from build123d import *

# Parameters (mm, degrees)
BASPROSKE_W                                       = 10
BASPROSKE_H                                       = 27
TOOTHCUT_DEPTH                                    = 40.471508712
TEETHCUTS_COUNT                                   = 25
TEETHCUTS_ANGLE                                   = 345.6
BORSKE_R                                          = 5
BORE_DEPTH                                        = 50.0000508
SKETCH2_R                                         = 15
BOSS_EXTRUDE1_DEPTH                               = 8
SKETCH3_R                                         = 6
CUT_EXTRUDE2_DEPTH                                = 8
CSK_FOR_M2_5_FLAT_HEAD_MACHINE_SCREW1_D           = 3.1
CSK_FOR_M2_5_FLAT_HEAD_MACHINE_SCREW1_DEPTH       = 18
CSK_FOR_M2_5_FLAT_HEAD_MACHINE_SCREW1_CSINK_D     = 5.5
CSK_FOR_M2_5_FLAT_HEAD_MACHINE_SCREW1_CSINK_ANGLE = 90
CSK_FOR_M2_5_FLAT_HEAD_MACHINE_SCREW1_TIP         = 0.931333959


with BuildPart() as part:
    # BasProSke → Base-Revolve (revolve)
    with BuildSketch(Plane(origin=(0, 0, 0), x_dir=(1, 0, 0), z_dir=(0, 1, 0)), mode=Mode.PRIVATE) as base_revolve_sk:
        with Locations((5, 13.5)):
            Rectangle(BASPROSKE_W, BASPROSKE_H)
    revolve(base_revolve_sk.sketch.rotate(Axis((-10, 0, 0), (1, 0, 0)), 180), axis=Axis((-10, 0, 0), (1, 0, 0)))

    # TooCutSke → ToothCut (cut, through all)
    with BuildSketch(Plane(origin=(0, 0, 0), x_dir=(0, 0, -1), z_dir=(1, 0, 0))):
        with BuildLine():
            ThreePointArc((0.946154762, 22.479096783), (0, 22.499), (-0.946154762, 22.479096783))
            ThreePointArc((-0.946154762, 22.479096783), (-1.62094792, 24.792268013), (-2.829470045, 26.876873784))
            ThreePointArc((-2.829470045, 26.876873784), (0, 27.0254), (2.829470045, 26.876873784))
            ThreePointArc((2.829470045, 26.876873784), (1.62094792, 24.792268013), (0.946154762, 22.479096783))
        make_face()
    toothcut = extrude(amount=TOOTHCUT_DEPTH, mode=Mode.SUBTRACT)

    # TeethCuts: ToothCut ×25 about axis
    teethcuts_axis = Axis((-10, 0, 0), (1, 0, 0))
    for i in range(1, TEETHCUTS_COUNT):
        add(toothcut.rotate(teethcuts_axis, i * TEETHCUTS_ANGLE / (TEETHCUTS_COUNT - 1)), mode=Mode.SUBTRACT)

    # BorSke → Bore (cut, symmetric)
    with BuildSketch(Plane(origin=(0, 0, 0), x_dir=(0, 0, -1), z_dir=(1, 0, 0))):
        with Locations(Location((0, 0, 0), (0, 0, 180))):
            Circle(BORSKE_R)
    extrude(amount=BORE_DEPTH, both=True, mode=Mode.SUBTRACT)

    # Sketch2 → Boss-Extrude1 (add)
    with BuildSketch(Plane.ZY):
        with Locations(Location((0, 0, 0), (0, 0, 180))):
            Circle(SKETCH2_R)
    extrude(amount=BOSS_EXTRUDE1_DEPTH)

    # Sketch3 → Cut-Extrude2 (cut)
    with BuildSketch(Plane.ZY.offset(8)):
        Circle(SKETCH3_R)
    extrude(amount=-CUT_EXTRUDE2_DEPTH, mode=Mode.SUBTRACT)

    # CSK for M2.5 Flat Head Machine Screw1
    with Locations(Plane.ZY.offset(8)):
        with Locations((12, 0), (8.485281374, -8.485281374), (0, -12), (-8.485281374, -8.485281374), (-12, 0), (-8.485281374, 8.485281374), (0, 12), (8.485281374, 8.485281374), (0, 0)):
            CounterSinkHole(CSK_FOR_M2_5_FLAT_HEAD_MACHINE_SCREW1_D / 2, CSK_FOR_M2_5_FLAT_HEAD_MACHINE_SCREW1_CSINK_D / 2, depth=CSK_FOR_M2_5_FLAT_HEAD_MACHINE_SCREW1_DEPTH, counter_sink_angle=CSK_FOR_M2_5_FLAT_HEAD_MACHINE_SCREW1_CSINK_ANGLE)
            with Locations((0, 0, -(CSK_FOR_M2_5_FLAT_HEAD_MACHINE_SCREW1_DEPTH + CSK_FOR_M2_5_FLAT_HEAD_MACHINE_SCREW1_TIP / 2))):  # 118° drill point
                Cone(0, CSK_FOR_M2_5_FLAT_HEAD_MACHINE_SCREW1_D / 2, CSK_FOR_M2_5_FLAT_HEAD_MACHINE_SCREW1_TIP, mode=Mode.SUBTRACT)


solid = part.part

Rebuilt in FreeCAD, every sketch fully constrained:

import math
import FreeCAD as App
import Part
import Sketcher
from FreeCAD import Vector
Q = App.Units.Quantity


def add_polygon(sketch, points):
    """Adds a closed chain of lines whose ends are joined by coincident constraints."""
    first, n = sketch.GeometryCount, len(points)
    for a, b in zip(points, points[1:] + points[:1]):
        sketch.addGeometry(Part.LineSegment(App.Vector(*a, 0), App.Vector(*b, 0)), False)
    for i in range(n):
        sketch.addConstraint(Sketcher.Constraint("Coincident", first + i, 2, first + (i + 1) % n, 1))

doc = App.newDocument("Part")
params = doc.addObject("Spreadsheet::Sheet", "Params")
for row, (alias, value) in enumerate([
    ("sketch1_width", "10 mm"),
    ("sketch1_height", "27 mm"),
    ("revolution_angle", "360 deg"),
    ("sketch2_radius", "10 mm"),
    ("sketch3_diameter", "10 mm"),
    ("pocket2_length", "100.000102 mm"),
    ("sketch4_diameter", "30 mm"),
    ("pad1_length", "8 mm"),
    ("sketch5_diameter", "12 mm"),
    ("pocket3_length", "8 mm"),
    ("sketch6_diameter", "3.1 mm"),
    ("hole_diameter", "3.1 mm"),
    ("hole_depth", "18 mm"),
    ("hole_csink_diameter", "5.5 mm"),
], start=1):
    params.set(f"A{row}", alias)
    params.set(f"B{row}", "=" + value)
    params.setAlias(f"B{row}", alias)

body = doc.addObject("PartDesign::Body", "Body")

# Sketch on XZ plane
sketch1 = doc.addObject("Sketcher::SketchObject", "Sketch")
body.addObject(sketch1)
sketch1.AttachmentSupport = (doc.XZ_Plane, [""])
sketch1.MapMode = "FlatFace"
add_polygon(sketch1, [(0, -27), (0, 0), (10, 0), (10, -27)])  # lines 0-3
sketch1.addConstraint(Sketcher.Constraint("Vertical", 0))
sketch1.addConstraint(Sketcher.Constraint("Horizontal", 1))
sketch1.addConstraint(Sketcher.Constraint("Vertical", 2))
sketch1.addConstraint(Sketcher.Constraint("Horizontal", 3))
sketch1.addConstraint(Sketcher.Constraint("Coincident", 0, 2, -1, 1))
sketch1.addConstraint(Sketcher.Constraint("DistanceX", 1, 1, 1, 2, Q("10 mm")))
sketch1.addConstraint(Sketcher.Constraint("DistanceY", 0, 1, 0, 2, Q("27 mm")))
sketch1.setExpression("Constraints[9]", "Params.sketch1_width")
sketch1.setExpression("Constraints[10]", "Params.sketch1_height")
revolution = doc.addObject("PartDesign::Revolution", "Revolution")
body.addObject(revolution)
revolution.Profile = sketch1
revolution.ReferenceAxis = (sketch1, ["H_Axis"])
revolution.setExpression("Angle", "Params.revolution_angle")

# Sketch on YZ plane
sketch2 = doc.addObject("Sketcher::SketchObject", "Sketch001")
body.addObject(sketch2)
sketch2.AttachmentSupport = (doc.YZ_Plane, [""])
sketch2.MapMode = "FlatFace"
sketch2.addGeometry(Part.ArcOfCircle(Part.Circle(Vector(0, 0, 0), Vector(0, 0, 1), 22.499), math.radians(-2.410181), math.radians(2.410181)), False)
sketch2.addGeometry(Part.ArcOfCircle(Part.Circle(Vector(20.855629, -10.813492, 0), Vector(0, 0, 1), 10), math.radians(52.977797), math.radians(80.656863)), False)
sketch2.addGeometry(Part.ArcOfCircle(Part.Circle(Vector(0, 0, 0), Vector(0, 0, 1), 27.0254), math.radians(-6.009692), math.radians(6.009692)), False)
sketch2.addGeometry(Part.ArcOfCircle(Part.Circle(Vector(20.855629, 10.813492, 0), Vector(0, 0, 1), 10), math.radians(-80.656863), math.radians(-52.977797)), False)
sketch2.addConstraint(Sketcher.Constraint("Coincident", 0, 1, 1, 2))
sketch2.addConstraint(Sketcher.Constraint("Coincident", 1, 1, 2, 1))
sketch2.addConstraint(Sketcher.Constraint("Coincident", 2, 2, 3, 2))
sketch2.addConstraint(Sketcher.Constraint("Coincident", 3, 1, 0, 2))
sketch2.addConstraint(Sketcher.Constraint("Coincident", 0, 3, -1, 1))
sketch2.addConstraint(Sketcher.Constraint("Coincident", 2, 3, -1, 1))
sketch2.addConstraint(Sketcher.Constraint("Equal", 1, 3))
sketch2.addConstraint(Sketcher.Constraint("Symmetric", 1, 3, 3, 3, -1))
sketch2.addConstraint(Sketcher.Constraint("Radius", 1, Q("10 mm")))
sketch2.addConstraint(Sketcher.Constraint("Radius", 0, Q("22.499 mm")))
sketch2.addConstraint(Sketcher.Constraint("Radius", 2, Q("27.0254 mm")))
sketch2.addConstraint(Sketcher.Constraint("DistanceX", -1, 1, 1, 3, Q("20.855629 mm")))
sketch2.addConstraint(Sketcher.Constraint("DistanceY", 1, 1, -1, 1, Q("2.82947 mm")))
sketch2.setExpression("Constraints[8]", "Params.sketch2_radius")
pocket1 = doc.addObject("PartDesign::Pocket", "Pocket")
body.addObject(pocket1)
pocket1.Profile = sketch2
pocket1.Type = "ThroughAll"
pocket1.Reversed = True
doc.recompute()

polarpattern = doc.addObject("PartDesign::PolarPattern", "PolarPattern")
body.addObject(polarpattern)
polarpattern.Originals = [pocket1]
polarpattern.Axis = (doc.X_Axis, [""])
polarpattern.Angle = 360
polarpattern.Occurrences = 25
body.Tip = polarpattern

# Sketch on YZ plane
sketch3 = doc.addObject("Sketcher::SketchObject", "Sketch002")
body.addObject(sketch3)
sketch3.AttachmentSupport = (doc.YZ_Plane, [""])
sketch3.MapMode = "FlatFace"
sketch3.addGeometry(Part.Circle(Vector(0, 0, 0), Vector(0, 0, 1), 5), False)
sketch3.addConstraint(Sketcher.Constraint("Coincident", 0, 3, -1, 1))
sketch3.addConstraint(Sketcher.Constraint("Diameter", 0, Q("10 mm")))
sketch3.setExpression("Constraints[1]", "Params.sketch3_diameter")
pocket2 = doc.addObject("PartDesign::Pocket", "Pocket001")
body.addObject(pocket2)
pocket2.Profile = sketch3
pocket2.setExpression("Length", "Params.pocket2_length")
pocket2.Midplane = True

# Sketch on YZ plane
sketch4 = doc.addObject("Sketcher::SketchObject", "Sketch003")
body.addObject(sketch4)
sketch4.AttachmentSupport = (doc.YZ_Plane, [""])
sketch4.MapMode = "FlatFace"
sketch4.addGeometry(Part.Circle(Vector(0, 0, 0), Vector(0, 0, 1), 15), False)
sketch4.addConstraint(Sketcher.Constraint("Coincident", 0, 3, -1, 1))
sketch4.addConstraint(Sketcher.Constraint("Diameter", 0, Q("30 mm")))
sketch4.setExpression("Constraints[1]", "Params.sketch4_diameter")
pad1 = doc.addObject("PartDesign::Pad", "Pad")
body.addObject(pad1)
pad1.Profile = sketch4
pad1.setExpression("Length", "Params.pad1_length")
pad1.Reversed = True

# Sketch on YZ plane
sketch5 = doc.addObject("Sketcher::SketchObject", "Sketch004")
body.addObject(sketch5)
sketch5.AttachmentSupport = (doc.YZ_Plane, [""])
sketch5.MapMode = "FlatFace"
sketch5.AttachmentOffset = App.Placement(Vector(0, 0, -8), App.Rotation())
sketch5.addGeometry(Part.Circle(Vector(0, 0, 0), Vector(0, 0, 1), 6), False)
sketch5.addConstraint(Sketcher.Constraint("Coincident", 0, 3, -1, 1))
sketch5.addConstraint(Sketcher.Constraint("Diameter", 0, Q("12 mm")))
sketch5.setExpression("Constraints[1]", "Params.sketch5_diameter")
pocket3 = doc.addObject("PartDesign::Pocket", "Pocket002")
body.addObject(pocket3)
pocket3.Profile = sketch5
pocket3.setExpression("Length", "Params.pocket3_length")
pocket3.Reversed = True

# Sketch on YZ plane
sketch6 = doc.addObject("Sketcher::SketchObject", "Sketch005")
body.addObject(sketch6)
sketch6.AttachmentSupport = (doc.YZ_Plane, [""])
sketch6.MapMode = "FlatFace"
sketch6.AttachmentOffset = App.Placement(Vector(0, 0, -8), App.Rotation())
sketch6.addGeometry(Part.Circle(Vector(0, 12, 0), Vector(0, 0, 1), 1.55), False)
sketch6.addGeometry(Part.Circle(Vector(-8.485281, 8.485281, 0), Vector(0, 0, 1), 1.55), False)
sketch6.addGeometry(Part.Circle(Vector(-12, 0, 0), Vector(0, 0, 1), 1.55), False)
sketch6.addGeometry(Part.Circle(Vector(-8.485281, -8.485281, 0), Vector(0, 0, 1), 1.55), False)
sketch6.addGeometry(Part.Circle(Vector(0, -12, 0), Vector(0, 0, 1), 1.55), False)
sketch6.addGeometry(Part.Circle(Vector(8.485281, -8.485281, 0), Vector(0, 0, 1), 1.55), False)
sketch6.addGeometry(Part.Circle(Vector(12, 0, 0), Vector(0, 0, 1), 1.55), False)
sketch6.addGeometry(Part.Circle(Vector(8.485281, 8.485281, 0), Vector(0, 0, 1), 1.55), False)
sketch6.addGeometry(Part.Circle(Vector(0, 0, 0), Vector(0, 0, 1), 1.55), False)
sketch6.addConstraint(Sketcher.Constraint("Coincident", 8, 3, -1, 1))
sketch6.addConstraint(Sketcher.Constraint("Equal", 0, 1))
sketch6.addConstraint(Sketcher.Constraint("Equal", 1, 2))
sketch6.addConstraint(Sketcher.Constraint("Equal", 2, 3))
sketch6.addConstraint(Sketcher.Constraint("Equal", 3, 4))
sketch6.addConstraint(Sketcher.Constraint("Equal", 4, 5))
sketch6.addConstraint(Sketcher.Constraint("Equal", 5, 6))
sketch6.addConstraint(Sketcher.Constraint("Equal", 6, 7))
sketch6.addConstraint(Sketcher.Constraint("Equal", 7, 8))
sketch6.addConstraint(Sketcher.Constraint("Symmetric", 0, 3, 4, 3, -1, 1))
sketch6.addConstraint(Sketcher.Constraint("Symmetric", 1, 3, 5, 3, -1, 1))
sketch6.addConstraint(Sketcher.Constraint("Symmetric", 2, 3, 6, 3, -1, 1))
sketch6.addConstraint(Sketcher.Constraint("Symmetric", 3, 3, 7, 3, -1, 1))
sketch6.addConstraint(Sketcher.Constraint("Symmetric", 3, 3, 5, 3, -2))
sketch6.addConstraint(Sketcher.Constraint("PointOnObject", 0, 3, -2))
sketch6.addConstraint(Sketcher.Constraint("PointOnObject", 2, 3, -1))
sketch6.addConstraint(Sketcher.Constraint("Diameter", 0, Q("3.1 mm")))
sketch6.addConstraint(Sketcher.Constraint("DistanceY", -1, 1, 0, 3, Q("12 mm")))
sketch6.addConstraint(Sketcher.Constraint("DistanceX", 2, 3, -1, 1, Q("12 mm")))
sketch6.addConstraint(Sketcher.Constraint("DistanceX", 1, 3, -1, 1, Q("8.485281 mm")))
sketch6.addConstraint(Sketcher.Constraint("DistanceY", -1, 1, 1, 3, Q("8.485281 mm")))
sketch6.setExpression("Constraints[16]", "Params.sketch6_diameter")
doc.recompute()
hole = doc.addObject("PartDesign::Hole", "Hole")
body.addObject(hole)
hole.Profile = sketch6
hole.ThreadType = "None"
hole.setExpression("Diameter", "Params.hole_diameter")
hole.DepthType = "Dimension"
hole.setExpression("Depth", "Params.hole_depth")
hole.DrillPoint = "Angled"
hole.DrillPointAngle = 118
hole.HoleCutType = "Countersink"
hole.setExpression("HoleCutDiameter", "Params.hole_csink_diameter")
hole.HoleCutCountersinkAngle = 90
hole.Reversed = True

doc.recompute()
